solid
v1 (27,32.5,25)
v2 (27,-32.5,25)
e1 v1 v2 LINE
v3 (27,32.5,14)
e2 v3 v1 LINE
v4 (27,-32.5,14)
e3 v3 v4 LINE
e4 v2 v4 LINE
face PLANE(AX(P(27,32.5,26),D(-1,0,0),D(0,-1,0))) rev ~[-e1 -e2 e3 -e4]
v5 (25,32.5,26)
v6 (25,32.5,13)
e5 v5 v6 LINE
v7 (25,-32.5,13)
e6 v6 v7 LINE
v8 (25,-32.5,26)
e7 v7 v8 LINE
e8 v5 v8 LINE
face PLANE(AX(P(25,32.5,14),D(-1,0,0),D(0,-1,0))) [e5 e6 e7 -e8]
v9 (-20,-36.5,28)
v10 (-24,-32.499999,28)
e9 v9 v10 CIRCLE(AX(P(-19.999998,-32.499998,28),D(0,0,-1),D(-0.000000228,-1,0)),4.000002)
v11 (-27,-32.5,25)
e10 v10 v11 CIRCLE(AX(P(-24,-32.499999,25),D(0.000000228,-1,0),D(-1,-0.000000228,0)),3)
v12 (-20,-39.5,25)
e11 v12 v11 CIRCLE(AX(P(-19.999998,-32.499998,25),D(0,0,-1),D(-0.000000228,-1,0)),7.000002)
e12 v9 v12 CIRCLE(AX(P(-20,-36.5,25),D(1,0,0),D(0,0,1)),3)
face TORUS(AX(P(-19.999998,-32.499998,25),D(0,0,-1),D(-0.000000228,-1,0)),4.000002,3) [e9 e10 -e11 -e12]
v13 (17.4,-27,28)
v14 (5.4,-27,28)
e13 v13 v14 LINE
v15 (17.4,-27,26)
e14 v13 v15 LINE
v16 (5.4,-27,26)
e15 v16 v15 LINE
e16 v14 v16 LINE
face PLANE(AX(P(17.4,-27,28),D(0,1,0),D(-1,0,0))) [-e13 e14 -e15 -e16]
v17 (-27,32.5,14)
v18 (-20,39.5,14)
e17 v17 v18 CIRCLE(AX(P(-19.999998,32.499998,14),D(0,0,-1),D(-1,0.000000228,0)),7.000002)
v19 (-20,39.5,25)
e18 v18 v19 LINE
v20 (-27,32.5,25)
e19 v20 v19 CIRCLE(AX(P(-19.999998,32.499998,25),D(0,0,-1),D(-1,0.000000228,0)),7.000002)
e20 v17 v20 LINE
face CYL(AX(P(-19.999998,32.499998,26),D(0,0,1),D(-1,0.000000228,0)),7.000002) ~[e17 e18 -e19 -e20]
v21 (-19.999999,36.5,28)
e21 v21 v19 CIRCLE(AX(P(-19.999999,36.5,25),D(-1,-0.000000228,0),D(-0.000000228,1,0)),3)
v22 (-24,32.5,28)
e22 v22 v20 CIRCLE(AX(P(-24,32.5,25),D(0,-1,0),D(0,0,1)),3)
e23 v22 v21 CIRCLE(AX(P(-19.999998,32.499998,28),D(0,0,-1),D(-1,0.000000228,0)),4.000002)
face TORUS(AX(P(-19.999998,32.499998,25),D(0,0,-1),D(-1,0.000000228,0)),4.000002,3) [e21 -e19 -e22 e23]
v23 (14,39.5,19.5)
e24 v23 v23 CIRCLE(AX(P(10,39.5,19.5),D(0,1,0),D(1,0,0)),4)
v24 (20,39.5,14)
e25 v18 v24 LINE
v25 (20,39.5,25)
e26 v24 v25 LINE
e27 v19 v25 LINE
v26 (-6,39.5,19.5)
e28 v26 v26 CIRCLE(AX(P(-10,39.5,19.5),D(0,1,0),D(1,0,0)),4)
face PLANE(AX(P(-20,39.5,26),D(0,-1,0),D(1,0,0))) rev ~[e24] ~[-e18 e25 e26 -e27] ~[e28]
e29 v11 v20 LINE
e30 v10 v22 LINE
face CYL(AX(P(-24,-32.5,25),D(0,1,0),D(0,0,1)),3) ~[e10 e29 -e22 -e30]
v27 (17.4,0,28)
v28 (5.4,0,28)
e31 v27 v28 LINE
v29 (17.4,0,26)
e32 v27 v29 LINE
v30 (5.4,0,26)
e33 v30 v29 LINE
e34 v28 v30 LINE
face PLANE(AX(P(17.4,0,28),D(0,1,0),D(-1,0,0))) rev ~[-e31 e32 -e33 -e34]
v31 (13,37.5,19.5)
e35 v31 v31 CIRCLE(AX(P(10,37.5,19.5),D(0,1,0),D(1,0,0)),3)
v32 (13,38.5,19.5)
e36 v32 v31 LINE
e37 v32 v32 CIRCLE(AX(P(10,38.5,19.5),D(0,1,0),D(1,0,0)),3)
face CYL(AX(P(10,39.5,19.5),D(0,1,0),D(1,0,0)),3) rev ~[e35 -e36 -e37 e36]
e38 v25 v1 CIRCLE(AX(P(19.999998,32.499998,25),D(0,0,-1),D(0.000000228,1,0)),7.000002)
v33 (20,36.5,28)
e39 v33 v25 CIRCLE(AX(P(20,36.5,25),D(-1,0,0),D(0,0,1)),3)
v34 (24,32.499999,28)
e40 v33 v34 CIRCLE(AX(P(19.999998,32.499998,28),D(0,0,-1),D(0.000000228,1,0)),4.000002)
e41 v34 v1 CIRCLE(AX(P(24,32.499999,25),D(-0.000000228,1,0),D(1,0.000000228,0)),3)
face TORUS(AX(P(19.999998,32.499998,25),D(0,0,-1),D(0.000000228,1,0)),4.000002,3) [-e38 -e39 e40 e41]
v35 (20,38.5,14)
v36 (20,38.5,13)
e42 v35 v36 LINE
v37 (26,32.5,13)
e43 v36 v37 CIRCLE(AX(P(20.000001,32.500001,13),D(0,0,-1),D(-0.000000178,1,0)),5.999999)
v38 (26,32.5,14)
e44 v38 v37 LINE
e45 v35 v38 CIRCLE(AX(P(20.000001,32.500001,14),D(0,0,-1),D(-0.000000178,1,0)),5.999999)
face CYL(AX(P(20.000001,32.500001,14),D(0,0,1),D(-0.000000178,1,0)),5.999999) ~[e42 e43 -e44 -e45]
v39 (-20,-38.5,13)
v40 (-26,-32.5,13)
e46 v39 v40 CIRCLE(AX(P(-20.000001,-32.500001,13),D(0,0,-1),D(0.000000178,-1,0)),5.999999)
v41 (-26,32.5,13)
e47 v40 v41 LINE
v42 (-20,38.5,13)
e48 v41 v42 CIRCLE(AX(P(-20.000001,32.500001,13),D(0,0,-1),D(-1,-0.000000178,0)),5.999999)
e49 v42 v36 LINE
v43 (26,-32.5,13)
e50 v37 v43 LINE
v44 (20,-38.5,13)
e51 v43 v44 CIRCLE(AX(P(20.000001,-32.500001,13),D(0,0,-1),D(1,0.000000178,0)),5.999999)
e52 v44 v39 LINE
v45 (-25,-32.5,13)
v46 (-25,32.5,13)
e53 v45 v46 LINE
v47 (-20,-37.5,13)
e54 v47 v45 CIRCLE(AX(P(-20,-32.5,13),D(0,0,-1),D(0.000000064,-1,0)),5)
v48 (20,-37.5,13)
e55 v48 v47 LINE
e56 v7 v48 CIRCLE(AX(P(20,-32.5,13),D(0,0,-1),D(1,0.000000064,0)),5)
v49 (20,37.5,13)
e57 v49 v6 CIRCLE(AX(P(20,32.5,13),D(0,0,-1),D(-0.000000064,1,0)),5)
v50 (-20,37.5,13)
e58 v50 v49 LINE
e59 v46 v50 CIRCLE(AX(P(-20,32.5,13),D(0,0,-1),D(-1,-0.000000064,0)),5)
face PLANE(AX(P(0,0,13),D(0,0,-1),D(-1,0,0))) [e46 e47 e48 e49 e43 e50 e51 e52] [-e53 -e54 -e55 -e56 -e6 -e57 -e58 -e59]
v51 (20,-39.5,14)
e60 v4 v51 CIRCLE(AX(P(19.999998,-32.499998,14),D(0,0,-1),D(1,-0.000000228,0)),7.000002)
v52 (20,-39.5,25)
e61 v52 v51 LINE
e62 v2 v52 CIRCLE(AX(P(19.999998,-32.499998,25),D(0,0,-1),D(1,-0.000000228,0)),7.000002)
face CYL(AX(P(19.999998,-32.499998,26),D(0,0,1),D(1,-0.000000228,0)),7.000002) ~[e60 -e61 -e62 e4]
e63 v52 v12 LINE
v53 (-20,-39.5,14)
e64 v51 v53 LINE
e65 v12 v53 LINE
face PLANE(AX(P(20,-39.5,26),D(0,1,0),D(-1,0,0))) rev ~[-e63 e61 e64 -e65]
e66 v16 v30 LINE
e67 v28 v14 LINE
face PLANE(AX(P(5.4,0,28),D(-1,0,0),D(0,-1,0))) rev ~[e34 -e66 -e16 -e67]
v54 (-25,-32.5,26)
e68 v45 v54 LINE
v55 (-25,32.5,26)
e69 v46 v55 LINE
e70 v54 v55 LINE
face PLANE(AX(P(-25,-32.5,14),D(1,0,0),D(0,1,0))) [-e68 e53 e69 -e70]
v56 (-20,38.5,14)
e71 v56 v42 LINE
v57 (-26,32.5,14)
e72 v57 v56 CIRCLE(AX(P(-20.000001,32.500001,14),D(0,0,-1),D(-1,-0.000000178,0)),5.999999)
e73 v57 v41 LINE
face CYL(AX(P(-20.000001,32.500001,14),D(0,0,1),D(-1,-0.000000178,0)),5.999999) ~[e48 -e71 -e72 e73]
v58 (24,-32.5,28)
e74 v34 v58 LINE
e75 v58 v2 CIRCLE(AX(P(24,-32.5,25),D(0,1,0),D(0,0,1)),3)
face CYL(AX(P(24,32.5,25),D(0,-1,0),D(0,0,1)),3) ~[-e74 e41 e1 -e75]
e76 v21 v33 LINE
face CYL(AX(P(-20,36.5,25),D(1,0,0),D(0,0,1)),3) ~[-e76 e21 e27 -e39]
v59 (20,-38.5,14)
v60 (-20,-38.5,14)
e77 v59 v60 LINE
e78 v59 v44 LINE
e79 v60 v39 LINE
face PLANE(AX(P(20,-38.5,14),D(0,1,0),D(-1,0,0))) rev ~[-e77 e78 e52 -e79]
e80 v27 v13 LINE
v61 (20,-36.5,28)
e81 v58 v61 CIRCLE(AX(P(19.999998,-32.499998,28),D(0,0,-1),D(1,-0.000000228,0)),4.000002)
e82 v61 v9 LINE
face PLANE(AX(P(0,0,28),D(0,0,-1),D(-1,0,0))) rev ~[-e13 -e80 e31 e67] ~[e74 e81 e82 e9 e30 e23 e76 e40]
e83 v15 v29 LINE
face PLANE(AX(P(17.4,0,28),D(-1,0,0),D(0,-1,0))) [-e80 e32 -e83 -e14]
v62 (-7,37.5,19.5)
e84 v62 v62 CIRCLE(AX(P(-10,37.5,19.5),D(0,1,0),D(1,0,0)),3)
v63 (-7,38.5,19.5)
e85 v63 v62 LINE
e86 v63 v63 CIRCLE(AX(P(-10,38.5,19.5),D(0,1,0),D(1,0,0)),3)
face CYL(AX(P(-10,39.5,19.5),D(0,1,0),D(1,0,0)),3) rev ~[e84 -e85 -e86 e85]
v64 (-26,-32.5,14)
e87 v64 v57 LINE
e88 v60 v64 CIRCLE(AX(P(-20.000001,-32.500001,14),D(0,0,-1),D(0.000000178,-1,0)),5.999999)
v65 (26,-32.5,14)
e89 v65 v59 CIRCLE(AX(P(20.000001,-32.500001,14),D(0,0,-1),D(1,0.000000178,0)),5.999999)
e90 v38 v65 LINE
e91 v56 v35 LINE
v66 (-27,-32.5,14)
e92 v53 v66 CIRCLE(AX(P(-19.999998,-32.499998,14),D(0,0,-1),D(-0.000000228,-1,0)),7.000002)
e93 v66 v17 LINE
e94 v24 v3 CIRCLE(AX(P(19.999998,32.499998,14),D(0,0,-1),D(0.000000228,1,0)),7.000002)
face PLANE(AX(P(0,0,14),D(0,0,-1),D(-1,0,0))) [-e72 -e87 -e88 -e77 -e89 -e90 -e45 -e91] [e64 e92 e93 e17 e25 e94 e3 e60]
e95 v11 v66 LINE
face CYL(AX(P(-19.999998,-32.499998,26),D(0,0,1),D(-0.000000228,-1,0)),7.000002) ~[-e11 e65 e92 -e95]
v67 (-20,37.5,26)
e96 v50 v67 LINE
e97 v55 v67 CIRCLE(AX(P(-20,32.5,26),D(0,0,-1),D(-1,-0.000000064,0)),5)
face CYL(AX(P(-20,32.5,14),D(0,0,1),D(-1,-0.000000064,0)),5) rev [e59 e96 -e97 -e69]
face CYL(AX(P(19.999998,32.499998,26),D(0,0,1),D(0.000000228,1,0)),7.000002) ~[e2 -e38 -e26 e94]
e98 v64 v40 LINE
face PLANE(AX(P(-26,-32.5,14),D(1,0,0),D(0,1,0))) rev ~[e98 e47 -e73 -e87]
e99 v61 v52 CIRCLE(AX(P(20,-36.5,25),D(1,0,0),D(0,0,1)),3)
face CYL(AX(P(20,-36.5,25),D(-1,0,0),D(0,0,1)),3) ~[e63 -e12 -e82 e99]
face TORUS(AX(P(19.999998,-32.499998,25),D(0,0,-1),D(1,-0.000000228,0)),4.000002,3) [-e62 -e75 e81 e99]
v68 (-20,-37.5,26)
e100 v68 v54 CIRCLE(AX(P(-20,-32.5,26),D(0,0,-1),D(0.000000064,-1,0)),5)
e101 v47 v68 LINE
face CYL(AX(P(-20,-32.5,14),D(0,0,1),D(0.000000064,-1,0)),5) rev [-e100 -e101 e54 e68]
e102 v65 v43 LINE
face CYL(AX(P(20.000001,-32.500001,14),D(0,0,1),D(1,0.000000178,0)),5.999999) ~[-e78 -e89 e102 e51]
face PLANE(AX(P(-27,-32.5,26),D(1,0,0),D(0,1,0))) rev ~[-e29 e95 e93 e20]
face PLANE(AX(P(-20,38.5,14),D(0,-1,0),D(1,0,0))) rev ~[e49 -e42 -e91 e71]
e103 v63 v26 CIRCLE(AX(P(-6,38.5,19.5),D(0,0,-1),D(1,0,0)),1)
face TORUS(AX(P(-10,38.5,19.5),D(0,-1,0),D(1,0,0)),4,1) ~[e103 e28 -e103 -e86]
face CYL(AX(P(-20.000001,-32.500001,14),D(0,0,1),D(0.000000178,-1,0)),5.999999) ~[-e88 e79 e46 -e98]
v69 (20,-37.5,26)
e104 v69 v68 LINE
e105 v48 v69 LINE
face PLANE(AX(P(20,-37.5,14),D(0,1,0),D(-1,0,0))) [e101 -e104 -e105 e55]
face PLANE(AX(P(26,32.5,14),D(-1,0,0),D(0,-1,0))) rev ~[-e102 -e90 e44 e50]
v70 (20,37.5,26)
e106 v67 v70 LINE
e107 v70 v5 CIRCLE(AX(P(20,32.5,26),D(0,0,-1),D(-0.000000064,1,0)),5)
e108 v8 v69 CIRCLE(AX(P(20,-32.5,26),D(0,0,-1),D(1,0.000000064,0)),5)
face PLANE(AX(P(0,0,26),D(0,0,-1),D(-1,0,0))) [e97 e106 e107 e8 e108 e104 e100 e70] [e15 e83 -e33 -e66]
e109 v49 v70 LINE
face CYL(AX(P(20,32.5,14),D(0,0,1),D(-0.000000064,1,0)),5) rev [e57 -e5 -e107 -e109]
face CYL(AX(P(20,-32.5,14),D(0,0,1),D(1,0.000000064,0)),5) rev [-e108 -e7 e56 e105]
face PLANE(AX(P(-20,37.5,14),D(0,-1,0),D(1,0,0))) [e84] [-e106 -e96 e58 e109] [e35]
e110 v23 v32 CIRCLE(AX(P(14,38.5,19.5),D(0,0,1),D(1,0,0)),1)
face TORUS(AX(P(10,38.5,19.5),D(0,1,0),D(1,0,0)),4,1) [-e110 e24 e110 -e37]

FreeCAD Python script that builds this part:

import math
import FreeCAD as App
import Part
import Sketcher
Q = App.Units.Quantity


def edges_at(feature, points):
    """Names of the edges that pass closest to the given points."""
    edges = feature.Shape.Edges
    near = lambda p: min(range(len(edges)), key=lambda i: edges[i].distToShape(Part.Vertex(*p))[0])
    return sorted({f"Edge{near(p) + 1}" for p in points})


def add_polygon(sketch, points):
    """Adds a closed chain of lines whose ends are joined by coincident constraints."""
    first, n = sketch.GeometryCount, len(points)
    for a, b in zip(points, points[1:] + points[:1]):
        sketch.addGeometry(Part.LineSegment(App.Vector(*a, 0), App.Vector(*b, 0)), False)
    for i in range(n):
        sketch.addConstraint(Sketcher.Constraint("Coincident", first + i, 2, first + (i + 1) % n, 1))

doc = App.newDocument("Part")
body = doc.addObject("PartDesign::Body", "Body")

# Sketch on XY plane
sketch1 = body.newObject("Sketcher::SketchObject", "Sketch")
sketch1.AttachmentSupport = (doc.getObject("XY_Plane"), [""])
sketch1.MapMode = "FlatFace"
sketch1.addGeometry([
    Part.LineSegment(App.Vector(-27, 32, 0), App.Vector(-27, -32, 0)),  # 0
    Part.ArcOfCircle(Part.Circle(App.Vector(-20, -32, 0), App.Vector(0, 0, 1), 7), math.radians(-180), math.radians(-90)),  # 1
    Part.LineSegment(App.Vector(-20, -40, 0), App.Vector(20, -40, 0)),  # 2
    Part.ArcOfCircle(Part.Circle(App.Vector(20, -32, 0), App.Vector(0, 0, 1), 7), math.radians(-90), math.radians(0)),  # 3
    Part.LineSegment(App.Vector(27, -32, 0), App.Vector(27, 32, 0)),  # 4
    Part.ArcOfCircle(Part.Circle(App.Vector(20, 32, 0), App.Vector(0, 0, 1), 7), math.radians(0), math.radians(90)),  # 5
    Part.LineSegment(App.Vector(20, 40, 0), App.Vector(-20, 40, 0)),  # 6
    Part.ArcOfCircle(Part.Circle(App.Vector(-20, 32, 0), App.Vector(0, 0, 1), 7), math.radians(90), math.radians(180)),  # 7
], False)
sketch1.addConstraint([
    Sketcher.Constraint("Tangent", 0, 2, 1, 1),
    Sketcher.Constraint("Tangent", 1, 2, 2, 1),
    Sketcher.Constraint("Tangent", 2, 2, 3, 1),
    Sketcher.Constraint("Tangent", 3, 2, 4, 1),
    Sketcher.Constraint("Tangent", 4, 2, 5, 1),
    Sketcher.Constraint("Tangent", 5, 2, 6, 1),
    Sketcher.Constraint("Tangent", 6, 2, 7, 1),
    Sketcher.Constraint("Tangent", 7, 2, 0, 1),
    Sketcher.Constraint("Vertical", 0),
    Sketcher.Constraint("Horizontal", 2),
    Sketcher.Constraint("Vertical", 4),
    Sketcher.Constraint("Horizontal", 6),
    Sketcher.Constraint("Equal", 1, 3),
    Sketcher.Constraint("Equal", 3, 5),
    Sketcher.Constraint("Equal", 5, 7),
    Sketcher.Constraint("Symmetric", 1, 3, 5, 3, -1, 1),
    Sketcher.Constraint("Radius", 1, Q("7.000002 mm")),
    Sketcher.Constraint("DistanceX", 2, 1, 2, 2, Q("40 mm")),
    Sketcher.Constraint("DistanceY", 0, 2, 0, 1, Q("65 mm")),
])
pad1 = body.newObject("PartDesign::Pad", "Pad")
pad1.Profile = sketch1
pad1.Length = 2

# Sketch on XY plane
sketch2 = body.newObject("Sketcher::SketchObject", "Sketch001")
sketch2.AttachmentSupport = (doc.getObject("XY_Plane"), [""])
sketch2.MapMode = "FlatFace"
sketch2.AttachmentOffset = App.Placement(App.Vector(0, 0, 2), App.Rotation())
sketch2.addGeometry([
    Part.LineSegment(App.Vector(-27, 32.5, 0), App.Vector(-27, -32.5, 0)),  # 0
    Part.ArcOfCircle(Part.Circle(App.Vector(-20, -32.5, 0), App.Vector(0, 0, 1), 7), math.radians(-180), math.radians(-90)),  # 1
    Part.LineSegment(App.Vector(-20, -39.5, 0), App.Vector(20, -39.5, 0)),  # 2
    Part.ArcOfCircle(Part.Circle(App.Vector(20, -32.5, 0), App.Vector(0, 0, 1), 7), math.radians(-90), math.radians(0)),  # 3
    Part.LineSegment(App.Vector(27, -32.5, 0), App.Vector(27, 32.5, 0)),  # 4
    Part.ArcOfCircle(Part.Circle(App.Vector(20, 32.5, 0), App.Vector(0, 0, 1), 7), math.radians(0), math.radians(90)),  # 5
    Part.LineSegment(App.Vector(20, 39.5, 0), App.Vector(-20, 39.5, 0)),  # 6
    Part.ArcOfCircle(Part.Circle(App.Vector(-20, 32.5, 0), App.Vector(0, 0, 1), 7), math.radians(90), math.radians(180)),  # 7
    Part.LineSegment(App.Vector(-25, -32.5, 0), App.Vector(-25, 32.5, 0)),  # 8
    Part.ArcOfCircle(Part.Circle(App.Vector(-20, 32.5, 0), App.Vector(0, 0, 1), 5), math.radians(90), math.radians(180)),  # 9
    Part.LineSegment(App.Vector(-20, 37.5, 0), App.Vector(20, 37.5, 0)),  # 10
    Part.ArcOfCircle(Part.Circle(App.Vector(20, 32.5, 0), App.Vector(0, 0, 1), 5), math.radians(0), math.radians(90)),  # 11
    Part.LineSegment(App.Vector(25, 32.5, 0), App.Vector(25, -32.5, 0)),  # 12
    Part.ArcOfCircle(Part.Circle(App.Vector(20, -32.5, 0), App.Vector(0, 0, 1), 5), math.radians(-90), math.radians(0)),  # 13
    Part.LineSegment(App.Vector(20, -37.5, 0), App.Vector(-20, -37.5, 0)),  # 14
    Part.ArcOfCircle(Part.Circle(App.Vector(-20, -32.5, 0), App.Vector(0, 0, 1), 5), math.radians(180), math.radians(270)),  # 15
], False)
sketch2.addConstraint([
    Sketcher.Constraint("Tangent", 0, 2, 1, 1),
    Sketcher.Constraint("Tangent", 1, 2, 2, 1),
    Sketcher.Constraint("Tangent", 2, 2, 3, 1),
    Sketcher.Constraint("Tangent", 3, 2, 4, 1),
    Sketcher.Constraint("Tangent", 4, 2, 5, 1),
    Sketcher.Constraint("Tangent", 5, 2, 6, 1),
    Sketcher.Constraint("Tangent", 6, 2, 7, 1),
    Sketcher.Constraint("Tangent", 7, 2, 0, 1),
    Sketcher.Constraint("Tangent", 8, 2, 9, 2),
    Sketcher.Constraint("Tangent", 9, 1, 10, 1),
    Sketcher.Constraint("Tangent", 10, 2, 11, 2),
    Sketcher.Constraint("Tangent", 11, 1, 12, 1),
    Sketcher.Constraint("Tangent", 12, 2, 13, 2),
    Sketcher.Constraint("Tangent", 13, 1, 14, 1),
    Sketcher.Constraint("Tangent", 14, 2, 15, 2),
    Sketcher.Constraint("Tangent", 15, 1, 8, 1),
    Sketcher.Constraint("Vertical", 0),
    Sketcher.Constraint("Horizontal", 2),
    Sketcher.Constraint("Vertical", 4),
    Sketcher.Constraint("Horizontal", 6),
    Sketcher.Constraint("Vertical", 8),
    Sketcher.Constraint("Horizontal", 10),
    Sketcher.Constraint("Vertical", 12),
    Sketcher.Constraint("Horizontal", 14),
    Sketcher.Constraint("Coincident", 9, 3, 7, 3),
    Sketcher.Constraint("Coincident", 11, 3, 5, 3),
    Sketcher.Constraint("Coincident", 13, 3, 3, 3),
    Sketcher.Constraint("Equal", 1, 3),
    Sketcher.Constraint("Equal", 3, 5),
    Sketcher.Constraint("Equal", 5, 7),
    Sketcher.Constraint("Equal", 13, 15),
    Sketcher.Constraint("Symmetric", 1, 3, 5, 3, -1, 1),
    Sketcher.Constraint("Radius", 1, Q("7.000002 mm")),
    Sketcher.Constraint("Radius", 9, Q("5 mm")),
    Sketcher.Constraint("DistanceX", 2, 1, 2, 2, Q("40 mm")),
    Sketcher.Constraint("DistanceY", 0, 2, 0, 1, Q("65 mm")),
])
pad2 = body.newObject("PartDesign::Pad", "Pad001")
pad2.Profile = sketch2
pad2.Length = 12
doc.recompute()

fillet = body.newObject("PartDesign::Fillet", "Fillet")
fillet.Base = (pad2, edges_at(pad2, [(0, -39.5, 0)]))
fillet.Radius = 3

# Sketch on XZ plane
sketch3 = body.newObject("Sketcher::SketchObject", "Sketch002")
sketch3.AttachmentSupport = (doc.getObject("XZ_Plane"), [""])
sketch3.MapMode = "FlatFace"
sketch3.AttachmentOffset = App.Placement(App.Vector(0, 0, -39.5), App.Rotation())
sketch3.addGeometry([
    Part.Circle(App.Vector(10, 8.5, 0), App.Vector(0, 0, 1), 3),
    Part.Circle(App.Vector(-10, 8.5, 0), App.Vector(0, 0, 1), 3),
], False)
sketch3.addConstraint([
    Sketcher.Constraint("Equal", 0, 1),
    Sketcher.Constraint("Symmetric", 0, 3, 1, 3, -2),
    Sketcher.Constraint("Diameter", 0, Q("6 mm")),
    Sketcher.Constraint("DistanceX", -1, 1, 0, 3, Q("10 mm")),
    Sketcher.Constraint("DistanceY", -1, 1, 0, 3, Q("8.5 mm")),
])
pocket1 = body.newObject("PartDesign::Pocket", "Pocket")
pocket1.Profile = sketch3
pocket1.Length = 5
pocket1.Reversed = True

# Sketch on XY plane
sketch4 = body.newObject("Sketcher::SketchObject", "Sketch003")
sketch4.AttachmentSupport = (doc.getObject("XY_Plane"), [""])
sketch4.MapMode = "FlatFace"
sketch4.AttachmentOffset = App.Placement(App.Vector(0, 0, 14), App.Rotation())
sketch4.addGeometry([
    Part.LineSegment(App.Vector(-26, 32.5, 0), App.Vector(-26, -32.5, 0)),  # 0
    Part.ArcOfCircle(Part.Circle(App.Vector(-20, -32.5, 0), App.Vector(0, 0, 1), 6), math.radians(180), math.radians(270)),  # 1
    Part.LineSegment(App.Vector(-20, -38.5, 0), App.Vector(20, -38.5, 0)),  # 2
    Part.ArcOfCircle(Part.Circle(App.Vector(20, -32.5, 0), App.Vector(0, 0, 1), 6), math.radians(-90), math.radians(0)),  # 3
    Part.LineSegment(App.Vector(26, -32.5, 0), App.Vector(26, 32.5, 0)),  # 4
    Part.ArcOfCircle(Part.Circle(App.Vector(20, 32.5, 0), App.Vector(0, 0, 1), 6), math.radians(0), math.radians(90)),  # 5
    Part.LineSegment(App.Vector(20, 38.5, 0), App.Vector(-20, 38.5, 0)),  # 6
    Part.ArcOfCircle(Part.Circle(App.Vector(-20, 32.5, 0), App.Vector(0, 0, 1), 6), math.radians(90), math.radians(180)),  # 7
    Part.LineSegment(App.Vector(-25, -32.5, 0), App.Vector(-25, 32.5, 0)),  # 8
    Part.ArcOfCircle(Part.Circle(App.Vector(-20, 32.5, 0), App.Vector(0, 0, 1), 5), math.radians(90), math.radians(180)),  # 9
    Part.LineSegment(App.Vector(-20, 37.5, 0), App.Vector(20, 37.5, 0)),  # 10
    Part.ArcOfCircle(Part.Circle(App.Vector(20, 32.5, 0), App.Vector(0, 0, 1), 5), math.radians(0), math.radians(90)),  # 11
    Part.LineSegment(App.Vector(25, 32.5, 0), App.Vector(25, -32.5, 0)),  # 12
    Part.ArcOfCircle(Part.Circle(App.Vector(20, -32.5, 0), App.Vector(0, 0, 1), 5), math.radians(-90), math.radians(0)),  # 13
    Part.LineSegment(App.Vector(20, -37.5, 0), App.Vector(-20, -37.5, 0)),  # 14
    Part.ArcOfCircle(Part.Circle(App.Vector(-20, -32.5, 0), App.Vector(0, 0, 1), 5), math.radians(180), math.radians(270)),  # 15
], False)
sketch4.addConstraint([
    Sketcher.Constraint("Tangent", 0, 2, 1, 1),
    Sketcher.Constraint("Tangent", 1, 2, 2, 1),
    Sketcher.Constraint("Tangent", 2, 2, 3, 1),
    Sketcher.Constraint("Tangent", 3, 2, 4, 1),
    Sketcher.Constraint("Tangent", 4, 2, 5, 1),
    Sketcher.Constraint("Tangent", 5, 2, 6, 1),
    Sketcher.Constraint("Tangent", 6, 2, 7, 1),
    Sketcher.Constraint("Tangent", 7, 2, 0, 1),
    Sketcher.Constraint("Tangent", 8, 2, 9, 2),
    Sketcher.Constraint("Tangent", 9, 1, 10, 1),
    Sketcher.Constraint("Tangent", 10, 2, 11, 2),
    Sketcher.Constraint("Tangent", 11, 1, 12, 1),
    Sketcher.Constraint("Tangent", 12, 2, 13, 2),
    Sketcher.Constraint("Tangent", 13, 1, 14, 1),
    Sketcher.Constraint("Tangent", 14, 2, 15, 2),
    Sketcher.Constraint("Tangent", 15, 1, 8, 1),
    Sketcher.Constraint("Vertical", 0),
    Sketcher.Constraint("Horizontal", 2),
    Sketcher.Constraint("Vertical", 4),
    Sketcher.Constraint("Horizontal", 6),
    Sketcher.Constraint("Vertical", 8),
    Sketcher.Constraint("Horizontal", 10),
    Sketcher.Constraint("Vertical", 12),
    Sketcher.Constraint("Horizontal", 14),
    Sketcher.Constraint("Coincident", 9, 3, 7, 3),
    Sketcher.Constraint("Coincident", 11, 3, 5, 3),
    Sketcher.Constraint("Coincident", 13, 3, 3, 3),
    Sketcher.Constraint("Equal", 1, 3),
    Sketcher.Constraint("Equal", 3, 5),
    Sketcher.Constraint("Equal", 5, 7),
    Sketcher.Constraint("Equal", 13, 15),
    Sketcher.Constraint("Symmetric", 1, 3, 5, 3, -1, 1),
    Sketcher.Constraint("Radius", 1, Q("5.999999 mm")),
    Sketcher.Constraint("Radius", 9, Q("5 mm")),
    Sketcher.Constraint("DistanceX", 2, 1, 2, 2, Q("40 mm")),
    Sketcher.Constraint("DistanceY", 0, 2, 0, 1, Q("65 mm")),
])
pad3 = body.newObject("PartDesign::Pad", "Pad002")
pad3.Profile = sketch4
pad3.Length = 1
doc.recompute()

fillet2 = body.newObject("PartDesign::Fillet", "Fillet001")
fillet2.Base = (pad3, edges_at(pad3, [(-7, 39.5, 8.5), (13, 39.5, 8.5)]))
fillet2.Radius = 1

# Sketch on XY plane
sketch5 = body.newObject("Sketcher::SketchObject", "Sketch004")
sketch5.AttachmentSupport = (doc.getObject("XY_Plane"), [""])
sketch5.MapMode = "FlatFace"
add_polygon(sketch5, [(-17, -27), (-17, 0), (-5, 0), (-5, -27)])  # lines 0-3
sketch5.addConstraint([
    Sketcher.Constraint("Vertical", 0),
    Sketcher.Constraint("Horizontal", 1),
    Sketcher.Constraint("Vertical", 2),
    Sketcher.Constraint("Horizontal", 3),
    Sketcher.Constraint("PointOnObject", 0, 2, -1),
    Sketcher.Constraint("DistanceX", 1, 1, 1, 2, Q("12 mm")),
    Sketcher.Constraint("DistanceY", 0, 1, 0, 2, Q("27 mm")),
    Sketcher.Constraint("DistanceX", 0, 2, -1, 1, Q("17.4 mm")),
])
pocket2 = body.newObject("PartDesign::Pocket", "Pocket001")
pocket2.Profile = sketch5
pocket2.Length = 5
pocket2.Reversed = True
body2 = doc.addObject("PartDesign::Body", "Body001")
doc.recompute()

body.Placement = App.Placement(App.Vector(0, 0, 28), App.Rotation(App.Vector(0, 1, 0), 180))
boolean = body2.newObject("PartDesign::Boolean", "Boolean")
boolean.Type = "Fuse"
boolean.addObjects([body])

doc.recompute()
